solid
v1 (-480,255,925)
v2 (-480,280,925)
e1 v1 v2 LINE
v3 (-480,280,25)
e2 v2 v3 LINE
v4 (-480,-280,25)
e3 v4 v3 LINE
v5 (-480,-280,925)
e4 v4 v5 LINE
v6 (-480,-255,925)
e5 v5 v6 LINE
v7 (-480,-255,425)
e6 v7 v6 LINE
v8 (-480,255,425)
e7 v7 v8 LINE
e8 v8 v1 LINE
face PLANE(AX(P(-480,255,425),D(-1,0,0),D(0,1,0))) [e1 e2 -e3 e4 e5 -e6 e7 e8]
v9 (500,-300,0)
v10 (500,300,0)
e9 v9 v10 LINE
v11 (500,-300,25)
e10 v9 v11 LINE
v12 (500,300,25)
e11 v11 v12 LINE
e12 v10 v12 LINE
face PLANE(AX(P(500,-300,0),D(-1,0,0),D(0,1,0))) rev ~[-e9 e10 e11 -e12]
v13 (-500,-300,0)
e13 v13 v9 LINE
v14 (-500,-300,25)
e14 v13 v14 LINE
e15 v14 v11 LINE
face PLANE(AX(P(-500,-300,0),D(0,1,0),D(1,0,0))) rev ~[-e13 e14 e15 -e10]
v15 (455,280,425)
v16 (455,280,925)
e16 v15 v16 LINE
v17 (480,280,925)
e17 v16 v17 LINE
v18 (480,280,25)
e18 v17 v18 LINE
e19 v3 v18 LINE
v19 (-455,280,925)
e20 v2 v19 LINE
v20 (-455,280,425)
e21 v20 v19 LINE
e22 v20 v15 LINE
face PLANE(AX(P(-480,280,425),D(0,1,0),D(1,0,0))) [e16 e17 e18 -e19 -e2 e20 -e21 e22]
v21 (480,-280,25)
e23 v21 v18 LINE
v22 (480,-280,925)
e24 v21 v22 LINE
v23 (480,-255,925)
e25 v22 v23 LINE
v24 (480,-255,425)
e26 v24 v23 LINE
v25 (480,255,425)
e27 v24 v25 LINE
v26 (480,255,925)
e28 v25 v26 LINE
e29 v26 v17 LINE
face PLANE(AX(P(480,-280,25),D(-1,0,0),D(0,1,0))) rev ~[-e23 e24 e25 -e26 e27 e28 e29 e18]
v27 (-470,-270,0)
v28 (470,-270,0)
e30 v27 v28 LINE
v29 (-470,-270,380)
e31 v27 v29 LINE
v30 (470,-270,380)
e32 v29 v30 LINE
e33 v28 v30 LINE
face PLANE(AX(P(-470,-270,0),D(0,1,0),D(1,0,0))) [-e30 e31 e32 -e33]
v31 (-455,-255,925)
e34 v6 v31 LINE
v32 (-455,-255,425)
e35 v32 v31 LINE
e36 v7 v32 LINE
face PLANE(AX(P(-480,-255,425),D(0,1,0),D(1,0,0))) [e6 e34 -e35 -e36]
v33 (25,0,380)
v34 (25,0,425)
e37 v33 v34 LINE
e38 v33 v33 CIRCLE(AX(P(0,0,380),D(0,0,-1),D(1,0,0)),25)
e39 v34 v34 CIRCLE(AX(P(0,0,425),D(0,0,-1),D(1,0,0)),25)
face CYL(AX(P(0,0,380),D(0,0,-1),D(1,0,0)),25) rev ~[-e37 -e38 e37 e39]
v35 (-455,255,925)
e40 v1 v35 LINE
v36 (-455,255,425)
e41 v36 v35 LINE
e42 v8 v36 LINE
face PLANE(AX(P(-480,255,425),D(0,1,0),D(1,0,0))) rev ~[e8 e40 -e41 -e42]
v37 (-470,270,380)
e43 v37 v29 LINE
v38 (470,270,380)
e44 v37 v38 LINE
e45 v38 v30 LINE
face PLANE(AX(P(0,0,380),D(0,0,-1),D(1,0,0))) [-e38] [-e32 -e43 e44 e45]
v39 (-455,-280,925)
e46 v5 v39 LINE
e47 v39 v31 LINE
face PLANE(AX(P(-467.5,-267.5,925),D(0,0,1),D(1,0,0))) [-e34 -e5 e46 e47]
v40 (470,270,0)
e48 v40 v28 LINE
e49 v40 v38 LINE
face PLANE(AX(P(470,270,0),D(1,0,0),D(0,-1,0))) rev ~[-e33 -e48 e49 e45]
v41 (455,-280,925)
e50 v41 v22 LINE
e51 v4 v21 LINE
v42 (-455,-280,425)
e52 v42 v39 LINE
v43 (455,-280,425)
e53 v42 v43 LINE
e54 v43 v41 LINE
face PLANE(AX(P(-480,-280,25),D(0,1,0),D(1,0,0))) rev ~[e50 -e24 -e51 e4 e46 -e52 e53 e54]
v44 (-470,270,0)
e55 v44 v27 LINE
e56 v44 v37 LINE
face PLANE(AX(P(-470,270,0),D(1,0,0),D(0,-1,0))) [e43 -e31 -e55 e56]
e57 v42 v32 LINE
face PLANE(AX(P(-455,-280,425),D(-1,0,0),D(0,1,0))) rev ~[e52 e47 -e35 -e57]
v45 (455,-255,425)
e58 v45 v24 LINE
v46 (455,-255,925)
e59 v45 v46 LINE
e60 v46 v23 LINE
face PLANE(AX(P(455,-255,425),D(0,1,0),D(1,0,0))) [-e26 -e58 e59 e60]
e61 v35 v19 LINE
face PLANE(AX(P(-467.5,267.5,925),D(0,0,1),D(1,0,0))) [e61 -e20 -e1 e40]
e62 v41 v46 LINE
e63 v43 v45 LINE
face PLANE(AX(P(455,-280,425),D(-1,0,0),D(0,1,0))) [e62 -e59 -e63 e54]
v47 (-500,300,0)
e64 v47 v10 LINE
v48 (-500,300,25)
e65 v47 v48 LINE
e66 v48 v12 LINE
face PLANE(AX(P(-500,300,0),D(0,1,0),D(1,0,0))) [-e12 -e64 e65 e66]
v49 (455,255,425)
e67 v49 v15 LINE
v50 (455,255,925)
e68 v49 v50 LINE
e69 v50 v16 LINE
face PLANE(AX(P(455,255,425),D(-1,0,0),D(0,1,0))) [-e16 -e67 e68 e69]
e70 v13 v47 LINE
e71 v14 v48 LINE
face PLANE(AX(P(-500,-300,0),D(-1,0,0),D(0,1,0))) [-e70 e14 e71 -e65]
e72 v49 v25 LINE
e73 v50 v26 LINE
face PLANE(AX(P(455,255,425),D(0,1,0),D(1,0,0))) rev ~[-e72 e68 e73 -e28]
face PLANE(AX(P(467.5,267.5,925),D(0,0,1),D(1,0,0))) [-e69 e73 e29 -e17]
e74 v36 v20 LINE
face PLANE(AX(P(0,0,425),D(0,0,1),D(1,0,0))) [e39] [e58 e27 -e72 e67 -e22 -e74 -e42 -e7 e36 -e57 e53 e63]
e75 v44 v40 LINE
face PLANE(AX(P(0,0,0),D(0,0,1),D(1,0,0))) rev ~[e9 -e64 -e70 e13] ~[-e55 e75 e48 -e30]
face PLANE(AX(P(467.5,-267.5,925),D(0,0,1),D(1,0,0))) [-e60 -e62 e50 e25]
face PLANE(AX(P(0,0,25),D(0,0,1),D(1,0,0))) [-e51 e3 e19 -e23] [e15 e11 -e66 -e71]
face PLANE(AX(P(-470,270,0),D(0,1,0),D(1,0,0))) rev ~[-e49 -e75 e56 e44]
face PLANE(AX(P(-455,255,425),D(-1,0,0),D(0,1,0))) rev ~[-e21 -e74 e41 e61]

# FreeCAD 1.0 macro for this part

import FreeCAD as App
import Part
import Sketcher

V = App.Vector
Q = App.Units.Quantity


def add_polygon(sketch, points):
    """Adds a closed chain of lines whose ends are joined by coincident constraints."""
    first, n = sketch.GeometryCount, len(points)
    for a, b in zip(points, points[1:] + points[:1]):
        sketch.addGeometry(Part.LineSegment(App.Vector(*a, 0), App.Vector(*b, 0)), False)
    for i in range(n):
        sketch.addConstraint(Sketcher.Constraint("Coincident", first + i, 2, first + (i + 1) % n, 1))

doc = App.newDocument("Part")
body = doc.addObject("PartDesign::Body", "Body")

# Sketch on XY plane
sketch1 = doc.addObject("Sketcher::SketchObject", "Sketch")
body.addObject(sketch1)
sketch1.AttachmentSupport = (doc.XY_Plane, [""])
sketch1.MapMode = "FlatFace"
add_polygon(sketch1, [(-500, 300), (-500, -300), (500, -300), (500, 300)])  # lines 0-3
sketch1.addConstraint([
    Sketcher.Constraint("Vertical", 0),
    Sketcher.Constraint("Horizontal", 1),
    Sketcher.Constraint("Vertical", 2),
    Sketcher.Constraint("Horizontal", 3),
    Sketcher.Constraint("Symmetric", 0, 2, 2, 2, -1, 1),
    Sketcher.Constraint("DistanceX", 1, 1, 1, 2, Q("1000 mm")),
    Sketcher.Constraint("DistanceY", 0, 2, 0, 1, Q("600 mm")),
])
pad1 = doc.addObject("PartDesign::Pad", "Pad")
body.addObject(pad1)
pad1.Profile = sketch1
pad1.Length = 25

# Sketch on XY plane
sketch2 = doc.addObject("Sketcher::SketchObject", "Sketch001")
body.addObject(sketch2)
sketch2.AttachmentSupport = (doc.XY_Plane, [""])
sketch2.MapMode = "FlatFace"
sketch2.AttachmentOffset = App.Placement(V(0, 0, 25), App.Rotation())
add_polygon(sketch2, [(-480, 280), (-480, -280), (480, -280), (480, 280)])  # lines 0-3
sketch2.addConstraint([
    Sketcher.Constraint("Vertical", 0),
    Sketcher.Constraint("Horizontal", 1),
    Sketcher.Constraint("Vertical", 2),
    Sketcher.Constraint("Horizontal", 3),
    Sketcher.Constraint("Symmetric", 0, 2, 2, 2, -1, 1),
    Sketcher.Constraint("DistanceX", 1, 1, 1, 2, Q("960 mm")),
    Sketcher.Constraint("DistanceY", 0, 2, 0, 1, Q("560 mm")),
])
pad2 = doc.addObject("PartDesign::Pad", "Pad001")
body.addObject(pad2)
pad2.Profile = sketch2
pad2.Length = 400

# Sketch on XY plane
sketch3 = doc.addObject("Sketcher::SketchObject", "Sketch002")
body.addObject(sketch3)
sketch3.AttachmentSupport = (doc.XY_Plane, [""])
sketch3.MapMode = "FlatFace"
add_polygon(sketch3, [(-470, -270), (-470, 270), (470, 270), (470, -270)])  # lines 0-3
sketch3.addConstraint([
    Sketcher.Constraint("Vertical", 0),
    Sketcher.Constraint("Horizontal", 1),
    Sketcher.Constraint("Vertical", 2),
    Sketcher.Constraint("Horizontal", 3),
    Sketcher.Constraint("Symmetric", 0, 2, 2, 2, -1, 1),
    Sketcher.Constraint("DistanceX", 1, 1, 1, 2, Q("940 mm")),
    Sketcher.Constraint("DistanceY", 0, 1, 0, 2, Q("540 mm")),
])
pocket1 = doc.addObject("PartDesign::Pocket", "Pocket")
body.addObject(pocket1)
pocket1.Profile = sketch3
pocket1.Length = 380
pocket1.Reversed = True

# Sketch on XY plane
sketch4 = doc.addObject("Sketcher::SketchObject", "Sketch003")
body.addObject(sketch4)
sketch4.AttachmentSupport = (doc.XY_Plane, [""])
sketch4.MapMode = "FlatFace"
sketch4.AttachmentOffset = App.Placement(V(0, 0, 425), App.Rotation())
add_polygon(sketch4, [(-480, 280), (-480, 255), (-455, 255), (-455, 280)])  # lines 0-3
add_polygon(sketch4, [(-480, -255), (-480, -280), (-455, -280), (-455, -255)])  # lines 4-7
add_polygon(sketch4, [(455, -255), (455, -280), (480, -280), (480, -255)])  # lines 8-11
add_polygon(sketch4, [(455, 280), (455, 255), (480, 255), (480, 280)])  # lines 12-15
sketch4.addConstraint([
    Sketcher.Constraint("Vertical", 0),
    Sketcher.Constraint("Horizontal", 1),
    Sketcher.Constraint("Vertical", 2),
    Sketcher.Constraint("Horizontal", 3),
    Sketcher.Constraint("Vertical", 4),
    Sketcher.Constraint("Horizontal", 5),
    Sketcher.Constraint("Vertical", 6),
    Sketcher.Constraint("Horizontal", 7),
    Sketcher.Constraint("Vertical", 8),
    Sketcher.Constraint("Horizontal", 9),
    Sketcher.Constraint("Vertical", 10),
    Sketcher.Constraint("Horizontal", 11),
    Sketcher.Constraint("Vertical", 12),
    Sketcher.Constraint("Horizontal", 13),
    Sketcher.Constraint("Vertical", 14),
    Sketcher.Constraint("Horizontal", 15),
    Sketcher.Constraint("Symmetric", 2, 2, 8, 2, -1, 1),
    Sketcher.Constraint("Symmetric", 0, 2, 10, 2, -1, 1),
    Sketcher.Constraint("Symmetric", 6, 2, 12, 2, -1, 1),
    Sketcher.Constraint("Symmetric", 4, 2, 14, 2, -1, 1),
    Sketcher.Constraint("Symmetric", 5, 2, 8, 2, -2),
    Sketcher.Constraint("Symmetric", 7, 2, 10, 2, -2),
    Sketcher.Constraint("Equal", 15, 0),
    Sketcher.Constraint("DistanceX", 1, 1, 1, 2, Q("25 mm")),
    Sketcher.Constraint("DistanceX", 0, 2, -1, 1, Q("480 mm")),
    Sketcher.Constraint("DistanceY", -1, 1, 0, 2, Q("255 mm")),
])
pad3 = doc.addObject("PartDesign::Pad", "Pad002")
body.addObject(pad3)
pad3.Profile = sketch4
pad3.Length = 500

# Sketch on XY plane
sketch5 = doc.addObject("Sketcher::SketchObject", "Sketch004")
body.addObject(sketch5)
sketch5.AttachmentSupport = (doc.XY_Plane, [""])
sketch5.MapMode = "FlatFace"
sketch5.AttachmentOffset = App.Placement(V(0, 0, 380), App.Rotation())
sketch5.addGeometry(Part.Circle(V(0, 0, 0), V(0, 0, 1), 25), False)
sketch5.addConstraint([
    Sketcher.Constraint("Coincident", 0, 3, -1, 1),
    Sketcher.Constraint("Diameter", 0, Q("50 mm")),
])
pocket2 = doc.addObject("PartDesign::Pocket", "Pocket001")
body.addObject(pocket2)
pocket2.Profile = sketch5
pocket2.Length = 100
pocket2.Reversed = True

doc.recompute()
